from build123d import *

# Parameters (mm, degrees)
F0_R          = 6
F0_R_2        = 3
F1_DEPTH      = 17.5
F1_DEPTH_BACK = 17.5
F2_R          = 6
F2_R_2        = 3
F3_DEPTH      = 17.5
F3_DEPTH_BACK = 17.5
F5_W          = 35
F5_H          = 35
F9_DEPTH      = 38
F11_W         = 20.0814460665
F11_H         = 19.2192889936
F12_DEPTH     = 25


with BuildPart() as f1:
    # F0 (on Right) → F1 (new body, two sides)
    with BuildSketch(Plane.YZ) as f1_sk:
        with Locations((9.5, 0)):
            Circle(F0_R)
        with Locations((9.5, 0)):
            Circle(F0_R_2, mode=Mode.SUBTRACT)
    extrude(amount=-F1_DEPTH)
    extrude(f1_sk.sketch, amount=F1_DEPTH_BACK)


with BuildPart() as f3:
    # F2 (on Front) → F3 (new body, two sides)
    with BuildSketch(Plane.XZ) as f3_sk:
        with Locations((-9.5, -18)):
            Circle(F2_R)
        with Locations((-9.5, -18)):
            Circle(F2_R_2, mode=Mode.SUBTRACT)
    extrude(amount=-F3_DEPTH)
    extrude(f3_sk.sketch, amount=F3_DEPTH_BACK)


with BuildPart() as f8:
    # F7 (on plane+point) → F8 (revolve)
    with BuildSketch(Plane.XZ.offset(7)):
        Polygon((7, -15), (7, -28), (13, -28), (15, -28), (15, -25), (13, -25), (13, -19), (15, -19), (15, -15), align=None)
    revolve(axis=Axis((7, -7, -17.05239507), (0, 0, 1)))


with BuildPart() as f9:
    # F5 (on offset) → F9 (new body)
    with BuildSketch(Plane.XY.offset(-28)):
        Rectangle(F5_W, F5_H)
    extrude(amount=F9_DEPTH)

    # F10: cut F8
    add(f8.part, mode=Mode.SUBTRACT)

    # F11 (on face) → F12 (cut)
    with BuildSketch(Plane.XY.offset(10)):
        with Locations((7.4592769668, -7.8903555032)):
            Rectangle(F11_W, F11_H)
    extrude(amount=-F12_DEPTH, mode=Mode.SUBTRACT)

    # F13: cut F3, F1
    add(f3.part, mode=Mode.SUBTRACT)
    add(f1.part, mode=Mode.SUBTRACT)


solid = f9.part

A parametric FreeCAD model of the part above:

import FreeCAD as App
import Part
import Sketcher
Q = App.Units.Quantity

doc = App.newDocument("Part")
body = doc.addObject("PartDesign::Body", "Body")

# Sketch on YZ plane
sketch1 = body.newObject("Sketcher::SketchObject", "Sketch")
sketch1.AttachmentSupport = (doc.getObject("YZ_Plane"), [""])
sketch1.MapMode = "FlatFace"
sketch1.addGeometry([
    Part.Circle(App.Vector(9.5, 0, 0), App.Vector(0, 0, 1), 6),
    Part.Circle(App.Vector(9.5, 0, 0), App.Vector(0, 0, 1), 3),
], False)
sketch1.addConstraint([
    Sketcher.Constraint("Coincident", 1, 3, 0, 3),
    Sketcher.Constraint("PointOnObject", 0, 3, -1),
    Sketcher.Constraint("Diameter", 0, Q("12 mm")),
    Sketcher.Constraint("Diameter", 1, Q("6 mm")),
    Sketcher.Constraint("DistanceX", -1, 1, 0, 3, Q("9.5 mm")),
])
pad1 = body.newObject("PartDesign::Pad", "Pad")
pad1.Profile = sketch1
pad1.Type = "TwoLengths"
pad1.Length = 17.5
pad1.Length2 = 17.5
pad1.Reversed = True
body2 = doc.addObject("PartDesign::Body", "Body001")

# Sketch on XZ plane
sketch2 = body2.newObject("Sketcher::SketchObject", "Sketch001")
sketch2.AttachmentSupport = (doc.getObject("XZ_Plane001"), [""])
sketch2.MapMode = "FlatFace"
sketch2.addGeometry([
    Part.Circle(App.Vector(-9.5, -18, 0), App.Vector(0, 0, 1), 6),
    Part.Circle(App.Vector(-9.5, -18, 0), App.Vector(0, 0, 1), 3),
], False)
sketch2.addConstraint([
    Sketcher.Constraint("Coincident", 1, 3, 0, 3),
    Sketcher.Constraint("Diameter", 0, Q("12 mm")),
    Sketcher.Constraint("Diameter", 1, Q("6 mm")),
    Sketcher.Constraint("DistanceY", 0, 3, -1, 1, Q("18 mm")),
    Sketcher.Constraint("DistanceX", 0, 3, -1, 1, Q("9.5 mm")),
])
pad2 = body2.newObject("PartDesign::Pad", "Pad001")
pad2.Profile = sketch2
pad2.Type = "TwoLengths"
pad2.Length = 17.5
pad2.Length2 = 17.5
pad2.Reversed = True
body3 = doc.addObject("PartDesign::Body", "Body002")

# Sketch on XZ plane
sketch3 = body3.newObject("Sketcher::SketchObject", "Sketch002")
sketch3.AttachmentSupport = (doc.getObject("XZ_Plane002"), [""])
sketch3.MapMode = "FlatFace"
sketch3.AttachmentOffset = App.Placement(App.Vector(0, 0, 7), App.Rotation())
sketch3.addGeometry([
    Part.LineSegment(App.Vector(7, -15, 0), App.Vector(7, -28, 0)),  # 0
    Part.LineSegment(App.Vector(7, -28, 0), App.Vector(15, -28, 0)),  # 1
    Part.LineSegment(App.Vector(15, -28, 0), App.Vector(15, -25, 0)),  # 2
    Part.LineSegment(App.Vector(15, -25, 0), App.Vector(13, -25, 0)),  # 3
    Part.LineSegment(App.Vector(13, -25, 0), App.Vector(13, -19, 0)),  # 4
    Part.LineSegment(App.Vector(13, -19, 0), App.Vector(15, -19, 0)),  # 5
    Part.LineSegment(App.Vector(15, -19, 0), App.Vector(15, -15, 0)),  # 6
    Part.LineSegment(App.Vector(15, -15, 0), App.Vector(7, -15, 0)),  # 7
], False)
sketch3.addGeometry(Part.LineSegment(App.Vector(7, -28, 0), App.Vector(7, -15, 0)), True)  # axis
sketch3.addConstraint([
    Sketcher.Constraint("Coincident", 0, 2, 1, 1),
    Sketcher.Constraint("Coincident", 1, 2, 2, 1),
    Sketcher.Constraint("Coincident", 2, 2, 3, 1),
    Sketcher.Constraint("Coincident", 3, 2, 4, 1),
    Sketcher.Constraint("Coincident", 4, 2, 5, 1),
    Sketcher.Constraint("Coincident", 5, 2, 6, 1),
    Sketcher.Constraint("Coincident", 6, 2, 7, 1),
    Sketcher.Constraint("Coincident", 7, 2, 0, 1),
    Sketcher.Constraint("Vertical", 0),
    Sketcher.Constraint("Horizontal", 1),
    Sketcher.Constraint("Vertical", 2),
    Sketcher.Constraint("Horizontal", 3),
    Sketcher.Constraint("Vertical", 4),
    Sketcher.Constraint("Horizontal", 5),
    Sketcher.Constraint("Vertical", 6),
    Sketcher.Constraint("Horizontal", 7),
    Sketcher.Constraint("Vertical", 8),
    Sketcher.Constraint("Coincident", 8, 1, 0, 2),
    Sketcher.Constraint("Horizontal", 6, 2, 8, 2),
    Sketcher.Constraint("Vertical", 2, 2, 5, 2),
    Sketcher.Constraint("DistanceX", 1, 1, 1, 2, Q("8 mm")),
    Sketcher.Constraint("DistanceX", 3, 2, 3, 1, Q("2 mm")),
    Sketcher.Constraint("DistanceY", 0, 2, 0, 1, Q("13 mm")),
    Sketcher.Constraint("DistanceY", 2, 1, 2, 2, Q("3 mm")),
    Sketcher.Constraint("DistanceY", 4, 1, 4, 2, Q("6 mm")),
    Sketcher.Constraint("DistanceX", -1, 1, 0, 2, Q("7 mm")),
    Sketcher.Constraint("DistanceY", 0, 2, -1, 1, Q("28 mm")),
])
revolution = body3.newObject("PartDesign::Revolution", "Revolution")
revolution.Profile = sketch3
revolution.ReferenceAxis = (sketch3, ["Axis0"])
revolution.Angle = 360
body4 = doc.addObject("PartDesign::Body", "Body003")
body4.AllowCompound = True

# Sketch on XY plane
sketch4 = body4.newObject("Sketcher::SketchObject", "Sketch003")
sketch4.AttachmentSupport = (doc.getObject("XY_Plane003"), [""])
sketch4.MapMode = "FlatFace"
sketch4.AttachmentOffset = App.Placement(App.Vector(0, 0, -28), App.Rotation())
sketch4.addGeometry([
    Part.LineSegment(App.Vector(-17.5, 17.5, 0), App.Vector(-17.5, -17.5, 0)),
    Part.LineSegment(App.Vector(-17.5, -17.5, 0), App.Vector(17.5, -17.5, 0)),
    Part.LineSegment(App.Vector(17.5, -17.5, 0), App.Vector(17.5, 17.5, 0)),
    Part.LineSegment(App.Vector(17.5, 17.5, 0), App.Vector(-17.5, 17.5, 0)),
], False)
sketch4.addConstraint([
    Sketcher.Constraint("Coincident", 0, 2, 1, 1),
    Sketcher.Constraint("Coincident", 1, 2, 2, 1),
    Sketcher.Constraint("Coincident", 2, 2, 3, 1),
    Sketcher.Constraint("Coincident", 3, 2, 0, 1),
    Sketcher.Constraint("Vertical", 0),
    Sketcher.Constraint("Horizontal", 1),
    Sketcher.Constraint("Vertical", 2),
    Sketcher.Constraint("Horizontal", 3),
    Sketcher.Constraint("Symmetric", 0, 2, 2, 2, -1, 1),
    Sketcher.Constraint("Equal", 3, 0),
    Sketcher.Constraint("DistanceX", 1, 1, 1, 2, Q("35 mm")),
])
pad3 = body4.newObject("PartDesign::Pad", "Pad002")
pad3.Profile = sketch4
pad3.Length = 38
doc.recompute()

boolean = body4.newObject("PartDesign::Boolean", "Boolean")
boolean.Type = "Cut"
boolean.addObjects([body3])

# Sketch on XY plane
sketch5 = body4.newObject("Sketcher::SketchObject", "Sketch004")
sketch5.AttachmentSupport = (doc.getObject("XY_Plane003"), [""])
sketch5.MapMode = "FlatFace"
sketch5.AttachmentOffset = App.Placement(App.Vector(0, 0, 10), App.Rotation())
sketch5.addGeometry([
    Part.LineSegment(App.Vector(-2.581446, 1.719289, 0), App.Vector(-2.581446, -17.5, 0)),
    Part.LineSegment(App.Vector(-2.581446, -17.5, 0), App.Vector(17.5, -17.5, 0)),
    Part.LineSegment(App.Vector(17.5, -17.5, 0), App.Vector(17.5, 1.719289, 0)),
    Part.LineSegment(App.Vector(17.5, 1.719289, 0), App.Vector(-2.581446, 1.719289, 0)),
], False)
sketch5.addConstraint([
    Sketcher.Constraint("Coincident", 0, 2, 1, 1),
    Sketcher.Constraint("Coincident", 1, 2, 2, 1),
    Sketcher.Constraint("Coincident", 2, 2, 3, 1),
    Sketcher.Constraint("Coincident", 3, 2, 0, 1),
    Sketcher.Constraint("Vertical", 0),
    Sketcher.Constraint("Horizontal", 1),
    Sketcher.Constraint("Vertical", 2),
    Sketcher.Constraint("Horizontal", 3),
    Sketcher.Constraint("DistanceY", 0, 2, -1, 1, Q("17.5 mm")),
    Sketcher.Constraint("DistanceX", -1, 1, 1, 2, Q("17.5 mm")),
    Sketcher.Constraint("DistanceY", 0, 2, 0, 1, Q("19.219289 mm")),
    Sketcher.Constraint("DistanceX", 1, 1, 1, 2, Q("20.081446 mm")),
])
pocket1 = body4.newObject("PartDesign::Pocket", "Pocket")
pocket1.Profile = sketch5
pocket1.Length = 25
doc.recompute()

boolean2 = body4.newObject("PartDesign::Boolean", "Boolean001")
boolean2.Type = "Cut"
boolean2.addObjects([body2])
doc.recompute()

boolean3 = body4.newObject("PartDesign::Boolean", "Boolean002")
boolean3.Type = "Cut"
boolean3.addObjects([body])

doc.recompute()
